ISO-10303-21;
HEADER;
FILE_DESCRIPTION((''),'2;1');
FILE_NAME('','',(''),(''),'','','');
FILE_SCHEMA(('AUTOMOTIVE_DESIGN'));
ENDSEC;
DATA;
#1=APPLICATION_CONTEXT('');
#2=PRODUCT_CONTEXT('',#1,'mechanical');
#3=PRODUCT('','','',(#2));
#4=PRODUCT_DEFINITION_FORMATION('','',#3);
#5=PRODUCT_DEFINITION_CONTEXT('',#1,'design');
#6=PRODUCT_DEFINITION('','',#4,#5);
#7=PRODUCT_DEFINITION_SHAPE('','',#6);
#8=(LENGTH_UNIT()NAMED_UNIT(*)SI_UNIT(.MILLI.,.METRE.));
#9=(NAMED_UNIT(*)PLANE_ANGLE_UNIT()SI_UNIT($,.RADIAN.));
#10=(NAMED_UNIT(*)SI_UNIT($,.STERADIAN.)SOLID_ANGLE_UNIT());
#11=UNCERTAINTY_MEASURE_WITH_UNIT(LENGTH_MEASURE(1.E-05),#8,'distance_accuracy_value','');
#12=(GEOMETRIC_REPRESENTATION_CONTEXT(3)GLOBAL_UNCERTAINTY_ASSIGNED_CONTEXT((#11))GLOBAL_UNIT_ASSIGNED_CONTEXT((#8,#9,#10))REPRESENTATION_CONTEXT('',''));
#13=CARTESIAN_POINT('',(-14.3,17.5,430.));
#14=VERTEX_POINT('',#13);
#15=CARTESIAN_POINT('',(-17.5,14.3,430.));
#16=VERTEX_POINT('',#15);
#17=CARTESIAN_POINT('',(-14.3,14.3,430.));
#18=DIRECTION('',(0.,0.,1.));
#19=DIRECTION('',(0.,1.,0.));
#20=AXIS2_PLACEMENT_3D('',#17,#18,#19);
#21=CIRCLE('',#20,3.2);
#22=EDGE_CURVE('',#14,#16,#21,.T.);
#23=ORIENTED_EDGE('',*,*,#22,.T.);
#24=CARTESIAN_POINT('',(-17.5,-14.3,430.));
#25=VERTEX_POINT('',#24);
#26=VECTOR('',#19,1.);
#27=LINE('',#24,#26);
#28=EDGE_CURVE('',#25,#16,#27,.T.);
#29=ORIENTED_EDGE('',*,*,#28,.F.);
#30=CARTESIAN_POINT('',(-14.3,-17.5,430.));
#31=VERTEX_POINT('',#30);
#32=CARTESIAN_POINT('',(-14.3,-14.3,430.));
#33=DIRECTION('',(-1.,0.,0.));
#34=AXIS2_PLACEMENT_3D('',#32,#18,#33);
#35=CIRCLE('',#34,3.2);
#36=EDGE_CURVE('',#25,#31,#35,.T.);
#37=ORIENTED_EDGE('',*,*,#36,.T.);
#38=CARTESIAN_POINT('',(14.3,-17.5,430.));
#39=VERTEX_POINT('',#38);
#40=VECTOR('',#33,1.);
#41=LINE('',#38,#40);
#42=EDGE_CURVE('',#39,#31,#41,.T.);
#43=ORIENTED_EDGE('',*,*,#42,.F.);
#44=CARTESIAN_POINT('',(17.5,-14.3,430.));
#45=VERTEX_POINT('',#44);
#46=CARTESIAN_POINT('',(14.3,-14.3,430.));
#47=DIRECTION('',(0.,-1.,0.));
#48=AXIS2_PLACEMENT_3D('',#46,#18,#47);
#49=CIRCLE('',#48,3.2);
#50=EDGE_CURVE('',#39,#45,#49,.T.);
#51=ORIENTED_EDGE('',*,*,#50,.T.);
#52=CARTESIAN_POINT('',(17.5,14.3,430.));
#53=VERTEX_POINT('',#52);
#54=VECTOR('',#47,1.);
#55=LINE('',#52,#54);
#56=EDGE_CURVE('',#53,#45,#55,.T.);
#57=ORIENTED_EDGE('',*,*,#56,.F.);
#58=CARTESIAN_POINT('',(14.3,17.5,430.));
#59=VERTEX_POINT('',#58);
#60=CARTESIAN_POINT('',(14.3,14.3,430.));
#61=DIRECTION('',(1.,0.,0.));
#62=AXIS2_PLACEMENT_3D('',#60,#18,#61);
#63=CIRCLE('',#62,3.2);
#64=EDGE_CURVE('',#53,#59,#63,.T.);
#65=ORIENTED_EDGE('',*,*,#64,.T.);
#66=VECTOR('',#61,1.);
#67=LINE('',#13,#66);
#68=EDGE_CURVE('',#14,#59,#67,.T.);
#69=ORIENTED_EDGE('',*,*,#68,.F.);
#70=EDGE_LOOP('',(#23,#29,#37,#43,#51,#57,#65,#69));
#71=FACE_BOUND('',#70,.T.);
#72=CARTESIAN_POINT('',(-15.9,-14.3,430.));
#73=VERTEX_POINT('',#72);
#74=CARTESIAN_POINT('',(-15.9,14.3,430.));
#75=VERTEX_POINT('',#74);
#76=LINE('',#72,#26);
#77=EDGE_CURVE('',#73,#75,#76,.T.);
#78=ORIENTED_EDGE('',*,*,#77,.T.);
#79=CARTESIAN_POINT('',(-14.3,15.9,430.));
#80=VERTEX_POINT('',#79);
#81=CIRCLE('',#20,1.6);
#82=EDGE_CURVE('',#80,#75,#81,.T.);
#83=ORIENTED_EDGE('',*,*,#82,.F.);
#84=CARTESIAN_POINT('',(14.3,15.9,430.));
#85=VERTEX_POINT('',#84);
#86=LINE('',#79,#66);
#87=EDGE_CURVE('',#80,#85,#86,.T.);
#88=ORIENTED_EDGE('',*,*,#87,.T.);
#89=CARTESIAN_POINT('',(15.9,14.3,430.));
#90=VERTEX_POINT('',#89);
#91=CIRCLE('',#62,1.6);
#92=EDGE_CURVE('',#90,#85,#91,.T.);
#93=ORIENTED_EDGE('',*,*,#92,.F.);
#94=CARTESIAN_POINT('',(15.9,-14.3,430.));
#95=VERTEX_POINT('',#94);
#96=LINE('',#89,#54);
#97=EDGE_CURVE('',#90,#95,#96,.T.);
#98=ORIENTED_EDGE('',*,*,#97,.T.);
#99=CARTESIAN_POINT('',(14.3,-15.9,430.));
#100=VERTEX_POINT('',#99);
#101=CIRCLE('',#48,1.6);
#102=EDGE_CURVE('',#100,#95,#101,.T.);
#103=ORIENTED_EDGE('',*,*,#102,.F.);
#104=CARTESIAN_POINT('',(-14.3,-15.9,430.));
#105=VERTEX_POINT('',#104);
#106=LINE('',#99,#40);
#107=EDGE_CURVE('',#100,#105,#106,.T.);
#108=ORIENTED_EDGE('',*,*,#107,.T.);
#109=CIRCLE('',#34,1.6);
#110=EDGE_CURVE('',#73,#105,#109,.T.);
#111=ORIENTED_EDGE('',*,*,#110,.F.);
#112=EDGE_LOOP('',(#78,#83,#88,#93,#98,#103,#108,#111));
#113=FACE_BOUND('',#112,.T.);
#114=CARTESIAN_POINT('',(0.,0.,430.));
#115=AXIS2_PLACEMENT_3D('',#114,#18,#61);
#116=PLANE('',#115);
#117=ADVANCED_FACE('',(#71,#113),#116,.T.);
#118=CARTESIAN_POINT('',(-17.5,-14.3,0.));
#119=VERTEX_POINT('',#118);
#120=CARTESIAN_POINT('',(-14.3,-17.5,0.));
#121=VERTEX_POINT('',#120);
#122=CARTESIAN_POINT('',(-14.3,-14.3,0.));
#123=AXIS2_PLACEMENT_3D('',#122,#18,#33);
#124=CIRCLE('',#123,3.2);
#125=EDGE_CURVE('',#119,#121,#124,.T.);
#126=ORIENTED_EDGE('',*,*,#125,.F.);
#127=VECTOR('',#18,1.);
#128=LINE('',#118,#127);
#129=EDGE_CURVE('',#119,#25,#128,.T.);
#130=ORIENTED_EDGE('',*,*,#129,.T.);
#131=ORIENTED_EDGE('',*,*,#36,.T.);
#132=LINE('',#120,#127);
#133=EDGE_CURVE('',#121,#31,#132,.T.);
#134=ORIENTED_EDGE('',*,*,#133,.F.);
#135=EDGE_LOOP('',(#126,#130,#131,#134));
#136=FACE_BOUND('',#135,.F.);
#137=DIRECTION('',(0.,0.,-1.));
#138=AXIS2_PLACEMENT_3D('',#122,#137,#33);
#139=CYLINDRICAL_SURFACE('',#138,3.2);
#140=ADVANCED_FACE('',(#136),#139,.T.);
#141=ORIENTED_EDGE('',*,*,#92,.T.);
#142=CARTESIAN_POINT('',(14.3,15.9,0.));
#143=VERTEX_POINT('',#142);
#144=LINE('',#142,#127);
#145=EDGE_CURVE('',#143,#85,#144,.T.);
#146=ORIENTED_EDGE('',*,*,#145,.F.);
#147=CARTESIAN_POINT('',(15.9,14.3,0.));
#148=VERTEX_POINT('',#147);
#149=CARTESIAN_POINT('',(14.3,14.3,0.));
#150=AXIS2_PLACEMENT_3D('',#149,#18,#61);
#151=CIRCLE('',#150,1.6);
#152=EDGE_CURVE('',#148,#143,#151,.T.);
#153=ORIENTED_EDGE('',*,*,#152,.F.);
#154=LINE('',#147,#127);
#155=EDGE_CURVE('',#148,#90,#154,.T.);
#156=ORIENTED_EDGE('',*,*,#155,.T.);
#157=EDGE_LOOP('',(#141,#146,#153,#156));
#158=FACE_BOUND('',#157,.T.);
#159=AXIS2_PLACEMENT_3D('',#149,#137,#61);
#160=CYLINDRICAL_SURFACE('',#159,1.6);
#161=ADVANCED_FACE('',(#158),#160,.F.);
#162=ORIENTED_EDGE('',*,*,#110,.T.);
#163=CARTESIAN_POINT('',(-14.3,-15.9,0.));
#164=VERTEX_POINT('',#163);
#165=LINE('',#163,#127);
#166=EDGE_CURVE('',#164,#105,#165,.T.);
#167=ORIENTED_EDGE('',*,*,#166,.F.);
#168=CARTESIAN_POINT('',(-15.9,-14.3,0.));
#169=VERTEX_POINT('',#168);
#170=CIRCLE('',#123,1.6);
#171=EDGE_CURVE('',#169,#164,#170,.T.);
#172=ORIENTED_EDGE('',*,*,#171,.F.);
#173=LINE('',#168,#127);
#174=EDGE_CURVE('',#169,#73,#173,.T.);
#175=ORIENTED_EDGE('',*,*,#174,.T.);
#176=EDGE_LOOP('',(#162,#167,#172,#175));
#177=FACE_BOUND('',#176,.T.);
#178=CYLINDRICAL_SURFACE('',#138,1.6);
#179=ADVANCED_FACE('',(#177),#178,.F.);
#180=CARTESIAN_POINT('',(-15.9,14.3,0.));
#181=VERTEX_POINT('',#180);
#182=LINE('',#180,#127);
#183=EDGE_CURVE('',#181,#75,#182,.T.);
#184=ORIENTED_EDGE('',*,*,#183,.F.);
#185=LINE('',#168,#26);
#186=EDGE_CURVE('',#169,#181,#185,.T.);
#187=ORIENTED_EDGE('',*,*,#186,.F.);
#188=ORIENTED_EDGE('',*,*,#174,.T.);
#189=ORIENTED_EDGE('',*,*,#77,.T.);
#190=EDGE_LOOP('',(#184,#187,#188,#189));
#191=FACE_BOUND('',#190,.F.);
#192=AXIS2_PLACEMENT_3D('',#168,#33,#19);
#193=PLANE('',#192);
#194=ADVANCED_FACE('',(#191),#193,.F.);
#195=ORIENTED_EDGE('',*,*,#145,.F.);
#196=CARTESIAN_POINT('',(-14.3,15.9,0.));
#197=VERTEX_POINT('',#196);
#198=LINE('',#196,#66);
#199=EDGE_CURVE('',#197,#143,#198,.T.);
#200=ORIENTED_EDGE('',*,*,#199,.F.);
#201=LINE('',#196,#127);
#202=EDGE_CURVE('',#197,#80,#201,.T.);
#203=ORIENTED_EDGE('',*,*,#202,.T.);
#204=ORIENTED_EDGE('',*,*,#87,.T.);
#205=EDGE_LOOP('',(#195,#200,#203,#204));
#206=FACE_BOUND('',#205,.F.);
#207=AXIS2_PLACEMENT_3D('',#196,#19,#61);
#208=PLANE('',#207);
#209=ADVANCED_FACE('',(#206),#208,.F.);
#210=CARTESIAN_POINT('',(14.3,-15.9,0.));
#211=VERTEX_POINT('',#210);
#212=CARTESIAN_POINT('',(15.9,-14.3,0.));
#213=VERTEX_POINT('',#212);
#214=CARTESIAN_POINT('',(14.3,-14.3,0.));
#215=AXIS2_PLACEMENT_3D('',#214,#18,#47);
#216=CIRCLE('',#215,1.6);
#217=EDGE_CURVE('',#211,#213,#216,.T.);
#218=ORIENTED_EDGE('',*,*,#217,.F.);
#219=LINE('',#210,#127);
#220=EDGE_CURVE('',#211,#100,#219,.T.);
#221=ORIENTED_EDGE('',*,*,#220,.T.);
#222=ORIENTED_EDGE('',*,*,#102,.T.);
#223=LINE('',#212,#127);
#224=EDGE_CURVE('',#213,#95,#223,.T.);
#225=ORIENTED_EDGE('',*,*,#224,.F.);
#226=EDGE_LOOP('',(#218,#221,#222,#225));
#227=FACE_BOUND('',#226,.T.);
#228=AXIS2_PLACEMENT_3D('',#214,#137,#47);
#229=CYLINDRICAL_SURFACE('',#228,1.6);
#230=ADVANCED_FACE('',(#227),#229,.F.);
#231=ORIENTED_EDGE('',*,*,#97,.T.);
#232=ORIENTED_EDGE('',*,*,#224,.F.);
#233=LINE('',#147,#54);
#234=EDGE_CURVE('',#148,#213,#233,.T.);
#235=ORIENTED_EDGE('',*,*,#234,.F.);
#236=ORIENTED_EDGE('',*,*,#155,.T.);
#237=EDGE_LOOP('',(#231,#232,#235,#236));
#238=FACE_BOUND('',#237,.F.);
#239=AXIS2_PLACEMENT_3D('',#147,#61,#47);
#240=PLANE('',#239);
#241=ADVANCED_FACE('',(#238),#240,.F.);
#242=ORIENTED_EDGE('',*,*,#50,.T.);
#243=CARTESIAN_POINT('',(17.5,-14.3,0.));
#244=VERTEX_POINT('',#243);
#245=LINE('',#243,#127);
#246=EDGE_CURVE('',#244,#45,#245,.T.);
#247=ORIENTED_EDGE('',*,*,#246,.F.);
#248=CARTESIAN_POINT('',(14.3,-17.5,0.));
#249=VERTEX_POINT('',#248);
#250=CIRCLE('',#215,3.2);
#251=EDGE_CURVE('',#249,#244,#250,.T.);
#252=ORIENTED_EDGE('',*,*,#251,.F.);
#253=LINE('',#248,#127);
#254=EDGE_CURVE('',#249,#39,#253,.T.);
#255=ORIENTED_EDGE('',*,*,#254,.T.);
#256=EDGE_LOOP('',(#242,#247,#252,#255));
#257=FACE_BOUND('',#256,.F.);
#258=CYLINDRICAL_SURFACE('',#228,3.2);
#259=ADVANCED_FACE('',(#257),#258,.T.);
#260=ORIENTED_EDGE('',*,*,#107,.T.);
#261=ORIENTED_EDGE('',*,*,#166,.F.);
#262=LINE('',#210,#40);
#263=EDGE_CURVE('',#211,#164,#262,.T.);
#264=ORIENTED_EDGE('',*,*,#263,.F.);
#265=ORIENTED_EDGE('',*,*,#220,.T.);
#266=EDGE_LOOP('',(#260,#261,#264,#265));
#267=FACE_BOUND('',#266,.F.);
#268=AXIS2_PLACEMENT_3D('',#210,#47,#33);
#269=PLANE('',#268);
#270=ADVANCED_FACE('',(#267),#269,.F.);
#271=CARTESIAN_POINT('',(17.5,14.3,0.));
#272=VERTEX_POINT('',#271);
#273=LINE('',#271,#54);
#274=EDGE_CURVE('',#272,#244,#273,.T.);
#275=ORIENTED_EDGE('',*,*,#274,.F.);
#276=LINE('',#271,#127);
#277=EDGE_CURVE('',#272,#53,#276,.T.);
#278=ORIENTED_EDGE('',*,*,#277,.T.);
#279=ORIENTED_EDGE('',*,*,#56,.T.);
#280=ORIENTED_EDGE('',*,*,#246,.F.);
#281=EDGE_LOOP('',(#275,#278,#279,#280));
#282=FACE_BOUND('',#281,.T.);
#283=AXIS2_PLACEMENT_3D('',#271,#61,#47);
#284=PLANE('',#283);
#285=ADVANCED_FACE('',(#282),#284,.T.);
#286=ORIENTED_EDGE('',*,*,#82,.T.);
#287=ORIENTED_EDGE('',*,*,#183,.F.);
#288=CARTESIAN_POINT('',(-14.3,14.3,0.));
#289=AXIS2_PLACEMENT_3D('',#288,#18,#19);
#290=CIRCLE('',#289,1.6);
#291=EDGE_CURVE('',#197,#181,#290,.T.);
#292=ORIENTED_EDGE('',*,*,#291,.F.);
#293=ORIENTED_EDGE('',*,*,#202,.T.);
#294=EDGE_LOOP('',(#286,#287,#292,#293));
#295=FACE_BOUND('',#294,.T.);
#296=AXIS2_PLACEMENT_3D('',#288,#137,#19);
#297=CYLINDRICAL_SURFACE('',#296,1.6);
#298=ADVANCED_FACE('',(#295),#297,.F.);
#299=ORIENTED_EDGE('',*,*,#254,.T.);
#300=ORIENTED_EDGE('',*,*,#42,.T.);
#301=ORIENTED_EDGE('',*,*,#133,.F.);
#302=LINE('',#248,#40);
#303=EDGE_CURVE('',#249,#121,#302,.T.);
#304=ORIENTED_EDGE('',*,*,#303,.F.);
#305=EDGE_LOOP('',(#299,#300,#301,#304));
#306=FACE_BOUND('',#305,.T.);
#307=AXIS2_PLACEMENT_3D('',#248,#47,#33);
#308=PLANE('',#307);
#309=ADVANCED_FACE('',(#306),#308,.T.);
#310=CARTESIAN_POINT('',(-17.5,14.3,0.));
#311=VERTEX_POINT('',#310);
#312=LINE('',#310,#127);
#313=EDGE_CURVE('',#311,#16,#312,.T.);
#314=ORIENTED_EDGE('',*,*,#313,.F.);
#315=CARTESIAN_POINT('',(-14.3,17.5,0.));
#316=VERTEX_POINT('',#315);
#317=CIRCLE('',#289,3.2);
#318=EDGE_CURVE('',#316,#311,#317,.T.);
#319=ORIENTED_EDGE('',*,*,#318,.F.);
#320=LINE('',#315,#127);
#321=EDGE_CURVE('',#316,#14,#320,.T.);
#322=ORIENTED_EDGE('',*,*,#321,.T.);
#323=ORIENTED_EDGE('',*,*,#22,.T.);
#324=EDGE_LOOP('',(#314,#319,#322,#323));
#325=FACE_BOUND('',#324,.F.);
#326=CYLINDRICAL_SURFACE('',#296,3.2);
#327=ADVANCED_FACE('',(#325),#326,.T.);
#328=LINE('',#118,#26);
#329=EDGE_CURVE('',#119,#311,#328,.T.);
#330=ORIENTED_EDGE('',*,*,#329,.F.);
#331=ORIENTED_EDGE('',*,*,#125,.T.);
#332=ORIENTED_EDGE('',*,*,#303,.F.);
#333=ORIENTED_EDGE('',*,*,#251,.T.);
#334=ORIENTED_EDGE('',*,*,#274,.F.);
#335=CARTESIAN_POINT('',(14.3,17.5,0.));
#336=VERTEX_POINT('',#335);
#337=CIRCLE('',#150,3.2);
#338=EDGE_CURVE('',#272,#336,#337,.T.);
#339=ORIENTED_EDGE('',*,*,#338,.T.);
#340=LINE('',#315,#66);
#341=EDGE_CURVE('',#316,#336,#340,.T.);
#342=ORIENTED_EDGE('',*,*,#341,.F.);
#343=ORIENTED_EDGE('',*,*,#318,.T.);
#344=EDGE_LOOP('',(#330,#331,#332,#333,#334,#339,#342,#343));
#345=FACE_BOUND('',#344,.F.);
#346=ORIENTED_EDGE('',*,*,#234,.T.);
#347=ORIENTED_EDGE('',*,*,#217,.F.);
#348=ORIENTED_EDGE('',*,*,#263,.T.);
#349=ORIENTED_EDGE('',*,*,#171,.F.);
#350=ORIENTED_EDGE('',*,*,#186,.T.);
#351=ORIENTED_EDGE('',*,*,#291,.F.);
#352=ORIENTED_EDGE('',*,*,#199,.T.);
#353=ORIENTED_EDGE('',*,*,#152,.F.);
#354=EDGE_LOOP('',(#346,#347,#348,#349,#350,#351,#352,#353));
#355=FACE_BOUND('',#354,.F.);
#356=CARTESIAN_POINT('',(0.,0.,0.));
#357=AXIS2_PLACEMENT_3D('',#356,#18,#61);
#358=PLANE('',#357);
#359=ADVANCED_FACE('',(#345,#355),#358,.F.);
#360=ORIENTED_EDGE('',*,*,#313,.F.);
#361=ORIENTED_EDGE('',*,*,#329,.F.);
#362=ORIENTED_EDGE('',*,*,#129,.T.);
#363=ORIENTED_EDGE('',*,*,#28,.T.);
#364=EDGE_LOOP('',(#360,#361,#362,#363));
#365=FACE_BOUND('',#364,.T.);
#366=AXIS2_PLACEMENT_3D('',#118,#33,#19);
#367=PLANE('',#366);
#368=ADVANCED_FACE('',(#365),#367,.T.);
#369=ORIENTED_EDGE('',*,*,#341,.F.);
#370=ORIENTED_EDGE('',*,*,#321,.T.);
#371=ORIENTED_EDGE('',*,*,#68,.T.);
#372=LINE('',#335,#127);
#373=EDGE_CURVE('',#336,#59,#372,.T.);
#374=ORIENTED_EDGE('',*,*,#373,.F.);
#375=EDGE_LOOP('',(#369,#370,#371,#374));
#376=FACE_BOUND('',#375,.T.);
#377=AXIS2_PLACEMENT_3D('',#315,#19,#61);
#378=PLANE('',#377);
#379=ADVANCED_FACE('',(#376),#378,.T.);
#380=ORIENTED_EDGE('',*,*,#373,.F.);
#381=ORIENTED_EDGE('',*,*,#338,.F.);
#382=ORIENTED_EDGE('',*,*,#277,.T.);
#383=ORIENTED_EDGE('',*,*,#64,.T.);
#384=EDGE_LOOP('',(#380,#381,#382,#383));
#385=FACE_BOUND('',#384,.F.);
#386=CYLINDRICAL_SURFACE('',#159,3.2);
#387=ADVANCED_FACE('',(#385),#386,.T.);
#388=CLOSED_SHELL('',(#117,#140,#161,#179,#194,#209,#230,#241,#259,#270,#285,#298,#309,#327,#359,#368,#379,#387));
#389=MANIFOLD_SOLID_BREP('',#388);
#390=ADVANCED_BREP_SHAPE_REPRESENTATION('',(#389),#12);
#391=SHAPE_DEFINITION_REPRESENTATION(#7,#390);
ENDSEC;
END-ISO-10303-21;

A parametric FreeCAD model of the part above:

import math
import FreeCAD as App
import Part
import Sketcher
from FreeCAD import Vector

doc = App.newDocument("Part")
params = doc.addObject("Spreadsheet::Sheet", "Params")
for row, (alias, value) in enumerate([
    ("sketch1_radius", "3.2 mm"),
    ("sketch1_radius2", "1.6 mm"),
    ("pad1_length", "430 mm"),
], start=1):
    params.set(f"A{row}", alias)
    params.set(f"B{row}", "=" + value)
    params.setAlias(f"B{row}", alias)

body = doc.addObject("PartDesign::Body", "Body")

# Sketch on XY plane
sketch1 = doc.addObject("Sketcher::SketchObject", "Sketch")
body.addObject(sketch1)
sketch1.AttachmentSupport = (doc.XY_Plane, [""])
sketch1.MapMode = "FlatFace"
sketch1.addGeometry([
    Part.LineSegment(Vector(-17.5, 14.3, 0), Vector(-17.5, -14.3, 0)),  # 0
    Part.ArcOfCircle(Part.Circle(Vector(-14.3, -14.3, 0), Vector(0, 0, 1), 3.2), math.radians(180), math.radians(270)),  # 1
    Part.LineSegment(Vector(-14.3, -17.5, 0), Vector(14.3, -17.5, 0)),  # 2
    Part.ArcOfCircle(Part.Circle(Vector(14.3, -14.3, 0), Vector(0, 0, 1), 3.2), math.radians(-90), math.radians(0)),  # 3
    Part.LineSegment(Vector(17.5, -14.3, 0), Vector(17.5, 14.3, 0)),  # 4
    Part.ArcOfCircle(Part.Circle(Vector(14.3, 14.3, 0), Vector(0, 0, 1), 3.2), math.radians(0), math.radians(90)),  # 5
    Part.LineSegment(Vector(14.3, 17.5, 0), Vector(-14.3, 17.5, 0)),  # 6
    Part.ArcOfCircle(Part.Circle(Vector(-14.3, 14.3, 0), Vector(0, 0, 1), 3.2), math.radians(90), math.radians(180)),  # 7
    Part.ArcOfCircle(Part.Circle(Vector(-14.3, 14.3, 0), Vector(0, 0, 1), 1.6), math.radians(90), math.radians(180)),  # 8
    Part.LineSegment(Vector(-14.3, 15.9, 0), Vector(14.3, 15.9, 0)),  # 9
    Part.ArcOfCircle(Part.Circle(Vector(14.3, 14.3, 0), Vector(0, 0, 1), 1.6), math.radians(0), math.radians(90)),  # 10
    Part.LineSegment(Vector(15.9, 14.3, 0), Vector(15.9, -14.3, 0)),  # 11
    Part.ArcOfCircle(Part.Circle(Vector(14.3, -14.3, 0), Vector(0, 0, 1), 1.6), math.radians(-90), math.radians(0)),  # 12
    Part.LineSegment(Vector(14.3, -15.9, 0), Vector(-14.3, -15.9, 0)),  # 13
    Part.ArcOfCircle(Part.Circle(Vector(-14.3, -14.3, 0), Vector(0, 0, 1), 1.6), math.radians(180), math.radians(270)),  # 14
    Part.LineSegment(Vector(-15.9, -14.3, 0), Vector(-15.9, 14.3, 0)),  # 15
], False)
sketch1.addConstraint([
    Sketcher.Constraint("Tangent", 0, 2, 1, 1),
    Sketcher.Constraint("Tangent", 1, 2, 2, 1),
    Sketcher.Constraint("Tangent", 2, 2, 3, 1),
    Sketcher.Constraint("Tangent", 3, 2, 4, 1),
    Sketcher.Constraint("Tangent", 4, 2, 5, 1),
    Sketcher.Constraint("Tangent", 5, 2, 6, 1),
    Sketcher.Constraint("Tangent", 6, 2, 7, 1),
    Sketcher.Constraint("Tangent", 7, 2, 0, 1),
    Sketcher.Constraint("Tangent", 8, 1, 9, 1),
    Sketcher.Constraint("Tangent", 9, 2, 10, 2),
    Sketcher.Constraint("Tangent", 10, 1, 11, 1),
    Sketcher.Constraint("Tangent", 11, 2, 12, 2),
    Sketcher.Constraint("Tangent", 12, 1, 13, 1),
    Sketcher.Constraint("Tangent", 13, 2, 14, 2),
    Sketcher.Constraint("Tangent", 14, 1, 15, 1),
    Sketcher.Constraint("Tangent", 15, 2, 8, 2),
    Sketcher.Constraint("Vertical", 0),
    Sketcher.Constraint("Horizontal", 2),
    Sketcher.Constraint("Vertical", 4),
    Sketcher.Constraint("Horizontal", 6),
    Sketcher.Constraint("Horizontal", 9),
    Sketcher.Constraint("Vertical", 11),
    Sketcher.Constraint("Horizontal", 13),
    Sketcher.Constraint("Vertical", 15),
    Sketcher.Constraint("Coincident", 8, 3, 7, 3),
    Sketcher.Constraint("Coincident", 10, 3, 5, 3),
    Sketcher.Constraint("Coincident", 12, 3, 3, 3),
    Sketcher.Constraint("Equal", 1, 3),
    Sketcher.Constraint("Equal", 3, 5),
    Sketcher.Constraint("Equal", 5, 7),
    Sketcher.Constraint("Equal", 12, 14),
    Sketcher.Constraint("Symmetric", 1, 3, 5, 3, -1, 1),
    Sketcher.Constraint("Equal", 13, 0),
    Sketcher.Constraint("Radius", 1, 3.2),
    Sketcher.Constraint("Radius", 8, 1.6),
    Sketcher.Constraint("DistanceX", 0, 2, -1, 1, 17.5),
])
sketch1.setExpression("Constraints[33]", "Params.sketch1_radius")
sketch1.setExpression("Constraints[34]", "Params.sketch1_radius2")
pad1 = doc.addObject("PartDesign::Pad", "Pad")
body.addObject(pad1)
pad1.Profile = sketch1
pad1.setExpression("Length", "Params.pad1_length")

doc.recompute()
